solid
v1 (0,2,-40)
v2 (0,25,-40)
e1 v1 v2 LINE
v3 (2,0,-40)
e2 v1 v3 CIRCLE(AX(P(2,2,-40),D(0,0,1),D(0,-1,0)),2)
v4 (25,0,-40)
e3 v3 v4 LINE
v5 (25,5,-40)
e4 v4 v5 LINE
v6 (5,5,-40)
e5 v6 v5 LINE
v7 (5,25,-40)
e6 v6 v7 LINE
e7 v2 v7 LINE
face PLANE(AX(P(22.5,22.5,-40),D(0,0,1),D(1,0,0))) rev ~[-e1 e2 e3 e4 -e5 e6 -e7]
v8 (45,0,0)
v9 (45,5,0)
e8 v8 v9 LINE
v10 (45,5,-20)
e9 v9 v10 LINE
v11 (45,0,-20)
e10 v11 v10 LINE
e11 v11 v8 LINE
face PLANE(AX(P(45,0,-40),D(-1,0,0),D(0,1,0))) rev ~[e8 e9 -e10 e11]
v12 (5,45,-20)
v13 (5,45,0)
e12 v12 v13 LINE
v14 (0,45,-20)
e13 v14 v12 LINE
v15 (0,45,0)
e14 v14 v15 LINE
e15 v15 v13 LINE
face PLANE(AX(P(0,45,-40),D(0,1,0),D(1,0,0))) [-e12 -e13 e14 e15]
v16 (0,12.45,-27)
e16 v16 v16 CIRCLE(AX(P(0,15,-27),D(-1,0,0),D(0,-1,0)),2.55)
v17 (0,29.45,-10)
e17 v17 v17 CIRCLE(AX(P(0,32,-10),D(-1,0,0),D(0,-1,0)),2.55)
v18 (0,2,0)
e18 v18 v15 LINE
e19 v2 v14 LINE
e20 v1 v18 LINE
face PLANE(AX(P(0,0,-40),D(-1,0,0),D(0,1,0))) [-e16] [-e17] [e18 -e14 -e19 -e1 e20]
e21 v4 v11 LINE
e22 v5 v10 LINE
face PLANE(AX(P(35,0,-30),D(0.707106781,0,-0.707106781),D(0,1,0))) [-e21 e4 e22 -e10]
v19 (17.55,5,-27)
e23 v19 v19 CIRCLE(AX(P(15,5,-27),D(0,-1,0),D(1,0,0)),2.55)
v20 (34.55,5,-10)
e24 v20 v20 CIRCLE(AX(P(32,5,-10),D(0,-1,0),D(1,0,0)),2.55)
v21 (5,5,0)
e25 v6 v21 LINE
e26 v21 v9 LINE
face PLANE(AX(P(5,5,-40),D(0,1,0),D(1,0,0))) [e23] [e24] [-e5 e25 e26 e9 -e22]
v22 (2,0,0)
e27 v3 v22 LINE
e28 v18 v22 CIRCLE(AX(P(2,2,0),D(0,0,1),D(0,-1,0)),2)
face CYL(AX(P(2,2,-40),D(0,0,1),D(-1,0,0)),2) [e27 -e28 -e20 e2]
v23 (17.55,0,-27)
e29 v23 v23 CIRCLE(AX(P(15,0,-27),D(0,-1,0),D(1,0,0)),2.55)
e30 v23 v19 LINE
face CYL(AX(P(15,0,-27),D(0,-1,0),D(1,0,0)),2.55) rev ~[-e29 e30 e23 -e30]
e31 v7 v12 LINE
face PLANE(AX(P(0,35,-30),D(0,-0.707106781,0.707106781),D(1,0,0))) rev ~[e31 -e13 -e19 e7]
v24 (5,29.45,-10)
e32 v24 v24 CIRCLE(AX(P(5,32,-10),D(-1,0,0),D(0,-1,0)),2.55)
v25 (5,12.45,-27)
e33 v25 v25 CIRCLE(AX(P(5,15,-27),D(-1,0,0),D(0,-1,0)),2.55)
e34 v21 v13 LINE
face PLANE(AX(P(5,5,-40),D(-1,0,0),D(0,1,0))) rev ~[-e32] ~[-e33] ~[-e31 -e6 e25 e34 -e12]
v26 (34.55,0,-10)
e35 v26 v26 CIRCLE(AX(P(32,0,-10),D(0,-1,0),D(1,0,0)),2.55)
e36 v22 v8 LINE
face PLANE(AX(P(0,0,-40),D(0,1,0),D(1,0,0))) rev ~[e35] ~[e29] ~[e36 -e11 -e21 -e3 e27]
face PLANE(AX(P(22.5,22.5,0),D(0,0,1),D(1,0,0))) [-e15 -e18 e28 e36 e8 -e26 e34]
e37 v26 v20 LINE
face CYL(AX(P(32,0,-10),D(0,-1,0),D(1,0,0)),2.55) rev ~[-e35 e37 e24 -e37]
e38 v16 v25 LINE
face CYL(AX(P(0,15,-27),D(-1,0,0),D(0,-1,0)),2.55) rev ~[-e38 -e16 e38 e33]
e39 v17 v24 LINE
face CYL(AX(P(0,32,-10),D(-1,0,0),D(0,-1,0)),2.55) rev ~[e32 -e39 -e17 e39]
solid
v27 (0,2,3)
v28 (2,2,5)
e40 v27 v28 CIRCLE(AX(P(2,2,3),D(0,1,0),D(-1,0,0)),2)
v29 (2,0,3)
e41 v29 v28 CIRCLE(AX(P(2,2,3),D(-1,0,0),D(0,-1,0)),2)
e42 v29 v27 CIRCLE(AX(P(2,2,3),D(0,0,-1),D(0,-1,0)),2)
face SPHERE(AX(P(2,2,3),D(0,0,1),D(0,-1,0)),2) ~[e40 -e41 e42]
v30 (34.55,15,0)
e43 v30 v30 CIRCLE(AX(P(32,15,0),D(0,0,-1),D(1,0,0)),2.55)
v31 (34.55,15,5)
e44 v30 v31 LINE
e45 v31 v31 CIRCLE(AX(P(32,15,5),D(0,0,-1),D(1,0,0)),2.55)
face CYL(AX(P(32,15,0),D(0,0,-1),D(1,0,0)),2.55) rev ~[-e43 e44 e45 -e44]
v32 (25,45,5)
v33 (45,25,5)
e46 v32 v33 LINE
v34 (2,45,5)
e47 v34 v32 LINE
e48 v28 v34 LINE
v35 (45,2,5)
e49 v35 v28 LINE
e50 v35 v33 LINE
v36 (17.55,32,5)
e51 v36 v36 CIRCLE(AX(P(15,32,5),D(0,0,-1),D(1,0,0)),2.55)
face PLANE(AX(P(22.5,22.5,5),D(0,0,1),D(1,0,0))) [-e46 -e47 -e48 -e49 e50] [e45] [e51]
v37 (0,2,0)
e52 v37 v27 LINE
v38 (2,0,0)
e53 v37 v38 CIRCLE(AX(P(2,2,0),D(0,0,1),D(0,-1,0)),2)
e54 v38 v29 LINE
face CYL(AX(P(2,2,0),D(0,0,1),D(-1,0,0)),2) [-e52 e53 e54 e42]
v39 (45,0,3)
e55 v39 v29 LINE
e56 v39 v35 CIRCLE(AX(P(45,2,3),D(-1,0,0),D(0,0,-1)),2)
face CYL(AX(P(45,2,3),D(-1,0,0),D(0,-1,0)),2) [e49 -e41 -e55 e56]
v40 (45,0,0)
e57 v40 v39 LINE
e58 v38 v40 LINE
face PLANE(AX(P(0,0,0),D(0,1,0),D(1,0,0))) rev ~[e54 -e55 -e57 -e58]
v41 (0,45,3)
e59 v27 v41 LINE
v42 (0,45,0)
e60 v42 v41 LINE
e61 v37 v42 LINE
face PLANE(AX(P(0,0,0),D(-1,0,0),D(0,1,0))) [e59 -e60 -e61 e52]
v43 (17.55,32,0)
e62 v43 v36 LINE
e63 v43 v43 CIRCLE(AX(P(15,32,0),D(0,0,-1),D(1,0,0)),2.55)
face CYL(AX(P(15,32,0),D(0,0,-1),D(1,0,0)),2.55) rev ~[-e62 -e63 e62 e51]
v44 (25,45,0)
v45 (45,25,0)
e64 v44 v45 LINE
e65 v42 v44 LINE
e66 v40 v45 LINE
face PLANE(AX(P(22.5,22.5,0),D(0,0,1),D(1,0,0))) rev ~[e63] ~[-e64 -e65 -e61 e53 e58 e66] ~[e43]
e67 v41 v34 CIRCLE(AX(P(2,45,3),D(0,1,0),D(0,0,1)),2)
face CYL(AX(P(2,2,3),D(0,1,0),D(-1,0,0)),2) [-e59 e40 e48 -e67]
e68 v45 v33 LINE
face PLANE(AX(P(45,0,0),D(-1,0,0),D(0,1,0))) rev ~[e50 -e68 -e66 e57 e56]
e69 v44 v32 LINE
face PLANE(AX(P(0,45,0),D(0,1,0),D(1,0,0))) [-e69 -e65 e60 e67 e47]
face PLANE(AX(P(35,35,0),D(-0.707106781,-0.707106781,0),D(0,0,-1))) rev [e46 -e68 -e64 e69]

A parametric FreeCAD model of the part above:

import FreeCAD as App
import Part
import Sketcher

V = App.Vector


def edges_at(feature, points):
    """Names of the edges that pass closest to the given points."""
    edges = feature.Shape.Edges
    near = lambda p: min(range(len(edges)), key=lambda i: edges[i].distToShape(Part.Vertex(*p))[0])
    return sorted({f"Edge{near(p) + 1}" for p in points})


def add_polygon(sketch, points):
    """Adds a closed chain of lines whose ends are joined by coincident constraints."""
    first, n = sketch.GeometryCount, len(points)
    for a, b in zip(points, points[1:] + points[:1]):
        sketch.addGeometry(Part.LineSegment(App.Vector(*a, 0), App.Vector(*b, 0)), False)
    for i in range(n):
        sketch.addConstraint(Sketcher.Constraint("Coincident", first + i, 2, first + (i + 1) % n, 1))

doc = App.newDocument("Part")
body = doc.addObject("PartDesign::Body", "Body")

# Sketch on XY plane
sketch1 = body.newObject("Sketcher::SketchObject", "Sketch")
sketch1.AttachmentSupport = (doc.getObject("XY_Plane"), [""])
sketch1.MapMode = "FlatFace"
add_polygon(sketch1, [(0, 45), (0, 0), (45, 0), (45, 45)])  # lines 0-3
sketch1.addConstraint(Sketcher.Constraint("Vertical", 0))
sketch1.addConstraint(Sketcher.Constraint("Horizontal", 1))
sketch1.addConstraint(Sketcher.Constraint("Vertical", 2))
sketch1.addConstraint(Sketcher.Constraint("Horizontal", 3))
sketch1.addConstraint(Sketcher.Constraint("Coincident", 0, 2, -1, 1))
sketch1.addConstraint(Sketcher.Constraint("Equal", 3, 0))
sketch1.addConstraint(Sketcher.Constraint("DistanceX", 1, 1, 1, 2, 45.0))
pad1 = body.newObject("PartDesign::Pad", "Pad")
pad1.Profile = sketch1
pad1.Length = 5

# Sketch on XY plane
sketch2 = body.newObject("Sketcher::SketchObject", "Sketch001")
sketch2.AttachmentSupport = (doc.getObject("XY_Plane"), [""])
sketch2.MapMode = "FlatFace"
sketch2.addGeometry(Part.Circle(V(15, 32, 0), V(0, 0, 1), 2.5), False)
sketch2.addGeometry(Part.Circle(V(32, 15, 0), V(0, 0, 1), 2.5), False)
sketch2.addConstraint(Sketcher.Constraint("Equal", 0, 1))
sketch2.addConstraint(Sketcher.Constraint("Diameter", 0, 5.1))
sketch2.addConstraint(Sketcher.Constraint("DistanceX", -1, 1, 0, 3, 15.0))
sketch2.addConstraint(Sketcher.Constraint("DistanceY", -1, 1, 0, 3, 32.0))
sketch2.addConstraint(Sketcher.Constraint("DistanceX", -1, 1, 1, 3, 32.0))
sketch2.addConstraint(Sketcher.Constraint("DistanceY", -1, 1, 1, 3, 15.0))
pocket1 = body.newObject("PartDesign::Pocket", "Pocket")
pocket1.Profile = sketch2
pocket1.Length = 5
pocket1.Reversed = True
doc.recompute()

fillet = body.newObject("PartDesign::Fillet", "Fillet")
fillet.Base = (pocket1, edges_at(pocket1, [(0, 0, 2.5)]))
fillet.Radius = 2
doc.recompute()

fillet2 = body.newObject("PartDesign::Fillet", "Fillet001")
fillet2.Base = (fillet, edges_at(fillet, [(0, 23.5, 5), (0.586, 0.586, 5), (23.5, 0, 5)]))
fillet2.Radius = 2
doc.recompute()

chamfer = body.newObject("PartDesign::Chamfer", "Chamfer")
chamfer.Base = (fillet2, edges_at(fillet2, [(45, 45, 2.5)]))
chamfer.Size = 20
body2 = doc.addObject("PartDesign::Body", "Body001")

# Sketch on XY plane
sketch3 = body2.newObject("Sketcher::SketchObject", "Sketch002")
sketch3.AttachmentSupport = (doc.getObject("XY_Plane001"), [""])
sketch3.MapMode = "FlatFace"
sketch3.AttachmentOffset = App.Placement(V(0, 0, -40), App.Rotation())
add_polygon(sketch3, [(5, 50), (5, 5), (50, 5), (50, 50)])  # lines 0-3
sketch3.addConstraint(Sketcher.Constraint("Vertical", 0))
sketch3.addConstraint(Sketcher.Constraint("Horizontal", 1))
sketch3.addConstraint(Sketcher.Constraint("Vertical", 2))
sketch3.addConstraint(Sketcher.Constraint("Horizontal", 3))
sketch3.addConstraint(Sketcher.Constraint("Equal", 3, 0))
sketch3.addConstraint(Sketcher.Constraint("DistanceX", 1, 1, 1, 2, 45.0))
sketch3.addConstraint(Sketcher.Constraint("DistanceX", -1, 1, 0, 2, 5.0))
sketch3.addConstraint(Sketcher.Constraint("DistanceY", -1, 1, 0, 2, 5.0))
pad2 = body2.newObject("PartDesign::Pad", "Pad001")
pad2.Profile = sketch3
pad2.Length = 40
body3 = doc.addObject("PartDesign::Body", "Body002")

# Sketch on XY plane
sketch4 = body3.newObject("Sketcher::SketchObject", "Sketch003")
sketch4.AttachmentSupport = (doc.getObject("XY_Plane002"), [""])
sketch4.MapMode = "FlatFace"
sketch4.AttachmentOffset = App.Placement(V(0, 0, -40), App.Rotation())
add_polygon(sketch4, [(0, 45), (0, 0), (45, 0), (45, 45)])  # lines 0-3
sketch4.addConstraint(Sketcher.Constraint("Vertical", 0))
sketch4.addConstraint(Sketcher.Constraint("Horizontal", 1))
sketch4.addConstraint(Sketcher.Constraint("Vertical", 2))
sketch4.addConstraint(Sketcher.Constraint("Horizontal", 3))
sketch4.addConstraint(Sketcher.Constraint("Coincident", 0, 2, -1, 1))
sketch4.addConstraint(Sketcher.Constraint("Equal", 3, 0))
sketch4.addConstraint(Sketcher.Constraint("DistanceX", 1, 1, 1, 2, 45.0))
pad3 = body3.newObject("PartDesign::Pad", "Pad002")
pad3.Profile = sketch4
pad3.Length = 40
doc.recompute()

boolean = body3.newObject("PartDesign::Boolean", "Boolean")
boolean.Type = "Cut"
boolean.addObjects([body2])
doc.recompute()

fillet3 = body3.newObject("PartDesign::Fillet", "Fillet002")
fillet3.Base = (boolean, edges_at(boolean, [(0, 0, -20)]))
fillet3.Radius = 2
doc.recompute()

chamfer2 = body3.newObject("PartDesign::Chamfer", "Chamfer001")
chamfer2.Base = (fillet3, edges_at(fillet3, [(45, 2.5, -40), (2.5, 45, -40)]))
chamfer2.Size = 20

# Sketch on XZ plane
sketch5 = body3.newObject("Sketcher::SketchObject", "Sketch004")
sketch5.AttachmentSupport = (doc.getObject("XZ_Plane002"), [""])
sketch5.MapMode = "FlatFace"
sketch5.addGeometry(Part.Circle(V(32, -10, 0), V(0, 0, 1), 2.5), False)
sketch5.addGeometry(Part.Circle(V(15, -27, 0), V(0, 0, 1), 2.5), False)
sketch5.addConstraint(Sketcher.Constraint("Equal", 0, 1))
sketch5.addConstraint(Sketcher.Constraint("Diameter", 0, 5.1))
sketch5.addConstraint(Sketcher.Constraint("DistanceX", -1, 1, 0, 3, 32.0))
sketch5.addConstraint(Sketcher.Constraint("DistanceY", 0, 3, -1, 1, 10.0))
sketch5.addConstraint(Sketcher.Constraint("DistanceX", -1, 1, 1, 3, 15.0))
sketch5.addConstraint(Sketcher.Constraint("DistanceY", 1, 3, -1, 1, 27.0))
pocket2 = body3.newObject("PartDesign::Pocket", "Pocket001")
pocket2.Profile = sketch5
pocket2.Length = 5

# Sketch on YZ plane
sketch6 = body3.newObject("Sketcher::SketchObject", "Sketch005")
sketch6.AttachmentSupport = (doc.getObject("YZ_Plane002"), [""])
sketch6.MapMode = "FlatFace"
sketch6.addGeometry(Part.Circle(V(32, -10, 0), V(0, 0, 1), 2.5), False)
sketch6.addGeometry(Part.Circle(V(15, -27, 0), V(0, 0, 1), 2.5), False)
sketch6.addConstraint(Sketcher.Constraint("Equal", 0, 1))
sketch6.addConstraint(Sketcher.Constraint("Diameter", 0, 5.1))
sketch6.addConstraint(Sketcher.Constraint("DistanceX", -1, 1, 0, 3, 32.0))
sketch6.addConstraint(Sketcher.Constraint("DistanceY", 0, 3, -1, 1, 10.0))
sketch6.addConstraint(Sketcher.Constraint("DistanceX", -1, 1, 1, 3, 15.0))
sketch6.addConstraint(Sketcher.Constraint("DistanceY", 1, 3, -1, 1, 27.0))
pocket3 = body3.newObject("PartDesign::Pocket", "Pocket002")
pocket3.Profile = sketch6
pocket3.Length = 5
pocket3.Reversed = True

doc.recompute()
